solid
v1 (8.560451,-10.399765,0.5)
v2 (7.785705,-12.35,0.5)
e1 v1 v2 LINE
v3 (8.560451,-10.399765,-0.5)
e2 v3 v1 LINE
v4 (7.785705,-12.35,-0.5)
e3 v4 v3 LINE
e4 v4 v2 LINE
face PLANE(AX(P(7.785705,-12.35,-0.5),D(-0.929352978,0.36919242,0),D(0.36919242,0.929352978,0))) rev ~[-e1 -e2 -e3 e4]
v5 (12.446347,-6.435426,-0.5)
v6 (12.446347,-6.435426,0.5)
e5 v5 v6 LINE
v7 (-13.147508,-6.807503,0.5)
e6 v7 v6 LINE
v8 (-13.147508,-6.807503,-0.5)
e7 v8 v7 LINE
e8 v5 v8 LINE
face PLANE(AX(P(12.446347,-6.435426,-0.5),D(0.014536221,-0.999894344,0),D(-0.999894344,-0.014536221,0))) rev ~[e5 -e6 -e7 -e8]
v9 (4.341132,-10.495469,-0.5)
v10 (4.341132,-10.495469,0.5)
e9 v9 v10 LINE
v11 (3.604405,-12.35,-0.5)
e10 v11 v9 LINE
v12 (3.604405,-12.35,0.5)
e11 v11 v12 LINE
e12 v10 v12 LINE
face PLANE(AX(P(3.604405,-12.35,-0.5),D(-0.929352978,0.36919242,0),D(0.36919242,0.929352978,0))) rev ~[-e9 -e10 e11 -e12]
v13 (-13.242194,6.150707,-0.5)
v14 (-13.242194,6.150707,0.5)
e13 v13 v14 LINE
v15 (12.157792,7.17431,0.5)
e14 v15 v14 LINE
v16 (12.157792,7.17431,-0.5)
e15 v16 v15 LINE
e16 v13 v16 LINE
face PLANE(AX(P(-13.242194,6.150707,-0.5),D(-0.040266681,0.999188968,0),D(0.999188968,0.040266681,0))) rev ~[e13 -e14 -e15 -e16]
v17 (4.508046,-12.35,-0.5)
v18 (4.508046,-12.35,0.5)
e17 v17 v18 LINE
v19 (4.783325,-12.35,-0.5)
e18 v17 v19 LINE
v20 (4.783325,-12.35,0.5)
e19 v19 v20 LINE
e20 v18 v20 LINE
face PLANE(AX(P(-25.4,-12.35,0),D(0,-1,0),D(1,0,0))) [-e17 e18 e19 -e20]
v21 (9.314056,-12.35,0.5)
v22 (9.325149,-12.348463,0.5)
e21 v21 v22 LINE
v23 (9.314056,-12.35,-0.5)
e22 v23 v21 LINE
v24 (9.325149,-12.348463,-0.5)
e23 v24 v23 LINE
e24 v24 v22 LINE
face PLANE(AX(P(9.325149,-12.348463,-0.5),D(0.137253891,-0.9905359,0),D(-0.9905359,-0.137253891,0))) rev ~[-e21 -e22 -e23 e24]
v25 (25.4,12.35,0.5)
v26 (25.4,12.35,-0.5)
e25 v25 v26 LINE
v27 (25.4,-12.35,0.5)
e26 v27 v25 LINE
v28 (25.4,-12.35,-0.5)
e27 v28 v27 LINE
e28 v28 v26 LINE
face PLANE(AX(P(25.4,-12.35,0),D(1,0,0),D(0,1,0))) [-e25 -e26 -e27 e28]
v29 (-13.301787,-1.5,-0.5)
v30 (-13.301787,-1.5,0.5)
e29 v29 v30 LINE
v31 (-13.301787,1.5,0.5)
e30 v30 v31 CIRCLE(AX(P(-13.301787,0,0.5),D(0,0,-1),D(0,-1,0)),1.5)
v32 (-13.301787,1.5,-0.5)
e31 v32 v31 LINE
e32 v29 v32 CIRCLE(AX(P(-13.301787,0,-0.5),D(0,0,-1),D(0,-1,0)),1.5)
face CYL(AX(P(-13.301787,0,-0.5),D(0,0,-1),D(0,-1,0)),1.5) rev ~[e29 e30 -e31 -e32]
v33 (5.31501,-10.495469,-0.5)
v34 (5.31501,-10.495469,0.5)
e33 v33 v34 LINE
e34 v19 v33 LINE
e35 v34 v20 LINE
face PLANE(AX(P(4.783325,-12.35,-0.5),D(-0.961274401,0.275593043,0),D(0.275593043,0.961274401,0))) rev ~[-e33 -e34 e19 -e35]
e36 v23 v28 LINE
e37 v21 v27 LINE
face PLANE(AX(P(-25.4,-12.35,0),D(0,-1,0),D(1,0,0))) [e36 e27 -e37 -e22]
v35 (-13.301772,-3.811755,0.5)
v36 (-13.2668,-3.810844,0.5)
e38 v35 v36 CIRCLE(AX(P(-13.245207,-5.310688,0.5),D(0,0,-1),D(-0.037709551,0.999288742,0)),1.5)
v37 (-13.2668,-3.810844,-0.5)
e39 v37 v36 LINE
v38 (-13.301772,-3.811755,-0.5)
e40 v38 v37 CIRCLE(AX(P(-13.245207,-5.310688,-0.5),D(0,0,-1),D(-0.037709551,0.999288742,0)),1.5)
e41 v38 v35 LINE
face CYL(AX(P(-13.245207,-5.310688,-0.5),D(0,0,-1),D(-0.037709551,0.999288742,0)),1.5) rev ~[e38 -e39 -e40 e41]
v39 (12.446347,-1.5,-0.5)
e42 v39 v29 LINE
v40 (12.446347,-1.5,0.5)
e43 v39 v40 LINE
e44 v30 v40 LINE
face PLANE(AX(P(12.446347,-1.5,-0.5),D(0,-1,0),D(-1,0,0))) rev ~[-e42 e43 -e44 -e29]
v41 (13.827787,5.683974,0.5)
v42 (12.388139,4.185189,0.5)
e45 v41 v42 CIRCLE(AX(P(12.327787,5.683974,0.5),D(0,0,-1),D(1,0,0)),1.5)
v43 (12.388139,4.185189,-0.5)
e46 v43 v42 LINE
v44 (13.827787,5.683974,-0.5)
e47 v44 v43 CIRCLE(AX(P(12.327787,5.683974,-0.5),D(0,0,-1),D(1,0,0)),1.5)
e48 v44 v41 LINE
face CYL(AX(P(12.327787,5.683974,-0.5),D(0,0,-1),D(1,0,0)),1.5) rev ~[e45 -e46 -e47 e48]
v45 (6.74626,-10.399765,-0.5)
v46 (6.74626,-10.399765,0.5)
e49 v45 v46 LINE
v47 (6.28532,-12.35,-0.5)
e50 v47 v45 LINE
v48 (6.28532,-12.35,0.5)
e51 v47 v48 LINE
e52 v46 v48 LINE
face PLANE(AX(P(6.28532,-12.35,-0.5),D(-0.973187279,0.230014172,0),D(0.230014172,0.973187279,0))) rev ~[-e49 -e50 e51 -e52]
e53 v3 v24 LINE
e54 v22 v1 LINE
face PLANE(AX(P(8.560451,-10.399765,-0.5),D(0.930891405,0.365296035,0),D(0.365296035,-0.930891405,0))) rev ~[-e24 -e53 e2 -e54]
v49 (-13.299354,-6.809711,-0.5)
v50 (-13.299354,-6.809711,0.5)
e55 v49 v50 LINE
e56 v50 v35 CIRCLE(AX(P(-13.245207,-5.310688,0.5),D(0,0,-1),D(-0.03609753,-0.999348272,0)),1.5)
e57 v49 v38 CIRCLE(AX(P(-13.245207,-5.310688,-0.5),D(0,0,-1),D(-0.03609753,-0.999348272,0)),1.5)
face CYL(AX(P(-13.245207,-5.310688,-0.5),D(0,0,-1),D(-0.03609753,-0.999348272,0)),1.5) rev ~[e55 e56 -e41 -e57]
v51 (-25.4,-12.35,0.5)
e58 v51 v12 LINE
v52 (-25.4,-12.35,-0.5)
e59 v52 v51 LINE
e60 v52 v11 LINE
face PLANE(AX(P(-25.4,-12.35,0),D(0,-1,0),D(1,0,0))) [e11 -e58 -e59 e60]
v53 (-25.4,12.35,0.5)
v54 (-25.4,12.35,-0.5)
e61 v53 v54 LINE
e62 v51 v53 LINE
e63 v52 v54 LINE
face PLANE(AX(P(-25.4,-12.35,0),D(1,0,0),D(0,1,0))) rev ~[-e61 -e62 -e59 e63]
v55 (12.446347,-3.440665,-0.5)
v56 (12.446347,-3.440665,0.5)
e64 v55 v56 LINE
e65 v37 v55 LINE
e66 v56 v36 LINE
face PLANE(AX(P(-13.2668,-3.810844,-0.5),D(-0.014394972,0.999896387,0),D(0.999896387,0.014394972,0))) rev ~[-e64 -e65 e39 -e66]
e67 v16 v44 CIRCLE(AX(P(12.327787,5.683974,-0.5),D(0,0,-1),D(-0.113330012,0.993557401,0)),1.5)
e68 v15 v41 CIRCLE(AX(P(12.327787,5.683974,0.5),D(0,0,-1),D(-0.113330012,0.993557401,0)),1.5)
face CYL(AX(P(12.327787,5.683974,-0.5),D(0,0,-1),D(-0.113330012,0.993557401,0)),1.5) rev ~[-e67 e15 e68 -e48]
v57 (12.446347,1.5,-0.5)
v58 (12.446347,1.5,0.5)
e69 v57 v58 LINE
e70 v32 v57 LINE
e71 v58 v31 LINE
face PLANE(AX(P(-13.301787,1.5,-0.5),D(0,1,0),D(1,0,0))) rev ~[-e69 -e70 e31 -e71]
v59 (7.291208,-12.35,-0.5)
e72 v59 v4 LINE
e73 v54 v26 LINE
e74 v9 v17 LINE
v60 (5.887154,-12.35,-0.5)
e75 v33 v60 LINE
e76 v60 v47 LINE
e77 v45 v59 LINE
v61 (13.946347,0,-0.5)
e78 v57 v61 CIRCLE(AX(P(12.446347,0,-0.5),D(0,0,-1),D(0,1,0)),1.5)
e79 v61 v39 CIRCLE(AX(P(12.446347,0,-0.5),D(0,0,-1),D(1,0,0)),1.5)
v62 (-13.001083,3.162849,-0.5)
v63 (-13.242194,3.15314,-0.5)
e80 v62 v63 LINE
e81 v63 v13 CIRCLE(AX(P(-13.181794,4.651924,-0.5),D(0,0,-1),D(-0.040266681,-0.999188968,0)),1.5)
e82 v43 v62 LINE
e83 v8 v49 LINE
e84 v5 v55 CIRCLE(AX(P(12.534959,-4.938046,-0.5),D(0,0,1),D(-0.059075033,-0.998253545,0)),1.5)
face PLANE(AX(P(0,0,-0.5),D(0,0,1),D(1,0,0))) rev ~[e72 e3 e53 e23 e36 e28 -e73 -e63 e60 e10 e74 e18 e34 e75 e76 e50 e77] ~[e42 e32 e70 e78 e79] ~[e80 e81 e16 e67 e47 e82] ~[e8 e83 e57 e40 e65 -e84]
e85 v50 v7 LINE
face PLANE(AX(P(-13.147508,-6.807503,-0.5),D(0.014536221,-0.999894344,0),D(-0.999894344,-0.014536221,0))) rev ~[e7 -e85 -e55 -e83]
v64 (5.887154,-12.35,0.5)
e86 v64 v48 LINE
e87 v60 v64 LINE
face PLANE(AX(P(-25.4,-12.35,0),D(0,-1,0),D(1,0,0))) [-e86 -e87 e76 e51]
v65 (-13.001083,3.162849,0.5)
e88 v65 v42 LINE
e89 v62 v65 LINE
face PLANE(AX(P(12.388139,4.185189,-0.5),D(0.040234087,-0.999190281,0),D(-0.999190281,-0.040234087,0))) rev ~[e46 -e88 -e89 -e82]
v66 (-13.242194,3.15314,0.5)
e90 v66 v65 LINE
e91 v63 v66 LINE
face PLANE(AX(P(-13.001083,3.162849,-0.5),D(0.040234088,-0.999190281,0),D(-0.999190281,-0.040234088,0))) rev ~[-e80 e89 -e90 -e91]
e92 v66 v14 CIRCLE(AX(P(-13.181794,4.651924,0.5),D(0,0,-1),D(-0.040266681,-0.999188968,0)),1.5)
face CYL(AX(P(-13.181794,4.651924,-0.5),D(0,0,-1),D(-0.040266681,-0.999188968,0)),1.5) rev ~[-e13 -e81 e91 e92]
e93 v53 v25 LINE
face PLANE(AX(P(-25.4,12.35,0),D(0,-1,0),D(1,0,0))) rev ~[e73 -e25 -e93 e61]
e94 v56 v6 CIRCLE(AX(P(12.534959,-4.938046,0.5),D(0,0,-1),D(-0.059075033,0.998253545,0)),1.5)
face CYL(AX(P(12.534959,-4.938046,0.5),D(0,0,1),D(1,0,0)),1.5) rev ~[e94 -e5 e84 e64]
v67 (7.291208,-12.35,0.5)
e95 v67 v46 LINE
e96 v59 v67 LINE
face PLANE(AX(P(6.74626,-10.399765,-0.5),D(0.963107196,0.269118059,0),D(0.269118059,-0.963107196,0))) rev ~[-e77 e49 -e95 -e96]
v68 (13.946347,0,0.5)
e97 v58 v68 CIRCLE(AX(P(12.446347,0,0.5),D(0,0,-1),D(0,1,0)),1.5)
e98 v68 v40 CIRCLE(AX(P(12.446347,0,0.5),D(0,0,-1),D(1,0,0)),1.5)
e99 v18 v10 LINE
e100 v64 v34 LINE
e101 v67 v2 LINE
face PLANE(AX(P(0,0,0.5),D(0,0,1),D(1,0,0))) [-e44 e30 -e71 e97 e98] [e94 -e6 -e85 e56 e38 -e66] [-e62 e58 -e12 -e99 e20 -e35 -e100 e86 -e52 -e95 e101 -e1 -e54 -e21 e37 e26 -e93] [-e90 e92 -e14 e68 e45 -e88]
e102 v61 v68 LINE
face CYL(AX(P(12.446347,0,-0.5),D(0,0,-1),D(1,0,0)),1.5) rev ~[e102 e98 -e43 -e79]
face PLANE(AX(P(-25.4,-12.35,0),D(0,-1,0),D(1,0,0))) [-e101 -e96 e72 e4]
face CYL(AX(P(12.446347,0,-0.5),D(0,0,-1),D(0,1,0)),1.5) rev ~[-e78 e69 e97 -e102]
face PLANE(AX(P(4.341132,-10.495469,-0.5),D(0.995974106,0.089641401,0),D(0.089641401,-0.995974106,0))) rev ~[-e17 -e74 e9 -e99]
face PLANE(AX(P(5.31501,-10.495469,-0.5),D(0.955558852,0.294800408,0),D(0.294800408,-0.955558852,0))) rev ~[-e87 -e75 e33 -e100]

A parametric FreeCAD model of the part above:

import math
import FreeCAD as App
import Part
import Sketcher
from FreeCAD import Vector


def add_polygon(sketch, points):
    """Adds a closed chain of lines whose ends are joined by coincident constraints."""
    first, n = sketch.GeometryCount, len(points)
    for a, b in zip(points, points[1:] + points[:1]):
        sketch.addGeometry(Part.LineSegment(App.Vector(*a, 0), App.Vector(*b, 0)), False)
    for i in range(n):
        sketch.addConstraint(Sketcher.Constraint("Coincident", first + i, 2, first + (i + 1) % n, 1))

doc = App.newDocument("Part")
body = doc.addObject("PartDesign::Body", "Body")

sketch1 = body.newObject("Sketcher::SketchObject", "Sketch")
sketch1.AttachmentSupport = (doc.getObject("XY_Plane"), [""])
sketch1.MapMode = "FlatFace"
add_polygon(sketch1, [(-25, 12), (-25, -12), (25, -12), (25, 12)])
sketch1.addConstraint([
    Sketcher.Constraint("Vertical", 0),
    Sketcher.Constraint("Horizontal", 1),
    Sketcher.Constraint("Vertical", 2),
    Sketcher.Constraint("Horizontal", 3),
    Sketcher.Constraint("Symmetric", 0, 2, 2, 2, -1, 1),
    Sketcher.Constraint("DistanceX", 1, 1, 1, 2, 50.8),
    Sketcher.Constraint("DistanceY", 0, 2, 0, 1, 24.7),
])
pad1 = body.newObject("PartDesign::Pad", "Pad")
pad1.Profile = sketch1
pad1.Length = 1
pad1.Midplane = True

sketch2 = body.newObject("Sketcher::SketchObject", "Sketch001")
sketch2.AttachmentSupport = (doc.getObject("XY_Plane"), [""])
sketch2.MapMode = "FlatFace"
sketch2.AttachmentOffset = App.Placement(Vector(0, 0, 0.5), App.Rotation())
sketch2.addGeometry(Part.Circle(Vector(12.5, -4.9, 0), Vector(0, 0, 1), 1.5), False)
sketch2.addConstraint([
    Sketcher.Constraint("Diameter", 0, 3.0),
    Sketcher.Constraint("DistanceX", -1, 1, 0, 3, 12.534959),
    Sketcher.Constraint("DistanceY", 0, 3, -1, 1, 4.938046),
])
pocket1 = body.newObject("PartDesign::Pocket", "Pocket")
pocket1.Profile = sketch2
pocket1.Length = 25

sketch3 = body.newObject("Sketcher::SketchObject", "Sketch002")
sketch3.AttachmentSupport = (doc.getObject("XY_Plane"), [""])
sketch3.MapMode = "FlatFace"
sketch3.AttachmentOffset = App.Placement(Vector(0, 0, -0.5), App.Rotation())
sketch3.addGeometry([
    Part.ArcOfCircle(Part.Circle(Vector(-13.245, -5.311, 0), Vector(0, 0, 1), 1.5), math.radians(0), math.radians(91)),
    Part.ArcOfCircle(Part.Circle(Vector(-13.245, -5.311, 0), Vector(0, 0, 1), 1.5), math.radians(-86), math.radians(0)),
    Part.LineSegment(Vector(-13.148, -6.808, 0), Vector(-13.299, -6.81, 0)),
    Part.ArcOfCircle(Part.Circle(Vector(-13.245, -5.311, 0), Vector(0, 0, 1), 1.5), math.radians(92), math.radians(268)),
    Part.ArcOfCircle(Part.Circle(Vector(-13.245, -5.311, 0), Vector(0, 0, 1), 1.5), math.radians(90.82), math.radians(92.16)),
], False)
sketch3.addConstraint([
    Sketcher.Constraint("Tangent", 0, 1, 1, 2),
    Sketcher.Constraint("Coincident", 1, 1, 2, 1),
    Sketcher.Constraint("Coincident", 2, 2, 3, 2),
    Sketcher.Constraint("Tangent", 3, 1, 4, 2),
    Sketcher.Constraint("Tangent", 4, 1, 0, 2),
    Sketcher.Constraint("Coincident", 3, 3, 0, 3),
    Sketcher.Constraint("Equal", 0, 1),
    Sketcher.Constraint("Horizontal", 4, 3, 0, 1),
    Sketcher.Constraint("Radius", 0, 1.5),
    Sketcher.Constraint("DistanceX", 4, 1, -1, 1, 13.2668),
    Sketcher.Constraint("DistanceX", 0, 3, 1, 1, 0.097699),
    Sketcher.Constraint("Distance", 2, 0.151861),
    Sketcher.Constraint("DistanceY", 0, 3, -1, 1, 5.310688),
    Sketcher.Constraint("DistanceX", 1, 1, -1, 1, 13.147508),
    Sketcher.Constraint("DistanceX", 3, 1, -1, 1, 13.301772),
])
pocket2 = body.newObject("PartDesign::Pocket", "Pocket001")
pocket2.Profile = sketch3
pocket2.Length = 25
pocket2.Reversed = True

sketch4 = body.newObject("Sketcher::SketchObject", "Sketch003")
sketch4.AttachmentSupport = (doc.getObject("XY_Plane"), [""])
sketch4.MapMode = "FlatFace"
sketch4.AttachmentOffset = App.Placement(Vector(0, 0, -0.5), App.Rotation())
sketch4.addGeometry([
    Part.ArcOfCircle(Part.Circle(Vector(-13.245207, -5.310688, 0), Vector(0, 0, 1), 1.5), math.radians(-86.265527), math.radians(0)),
    Part.ArcOfCircle(Part.Circle(Vector(-13.245207, -5.310688, 0), Vector(0, 0, 1), 1.5), math.radians(0), math.radians(90.824798)),
    Part.LineSegment(Vector(-13.2668, -3.810844, 0), Vector(12.446347, -3.440665, 0)),
    Part.ArcOfCircle(Part.Circle(Vector(12.534959, -4.938046, 0), Vector(0, 0, 1), 1.5), math.radians(93.386722), math.radians(266.613278)),
    Part.LineSegment(Vector(12.446347, -6.435426, 0), Vector(-13.147508, -6.807503, 0)),
], False)
sketch4.addConstraint([
    Sketcher.Constraint("Coincident", 0, 2, 1, 1),
    Sketcher.Constraint("Coincident", 1, 2, 2, 1),
    Sketcher.Constraint("Coincident", 2, 2, 3, 1),
    Sketcher.Constraint("Coincident", 3, 2, 4, 1),
    Sketcher.Constraint("Coincident", 4, 2, 0, 1),
    Sketcher.Constraint("Coincident", 1, 3, 0, 3),
    Sketcher.Constraint("Radius", 0, 1.5),
    Sketcher.Constraint("Radius", 3, 1.5),
    Sketcher.Constraint("DistanceX", 1, 2, -1, 1, 13.2668),
    Sketcher.Constraint("DistanceY", 3, 3, 1, 2, 1.127202),
    Sketcher.Constraint("DistanceX", 0, 3, 4, 2, 0.097699),
    Sketcher.Constraint("Distance", 2, 25.715811),
    Sketcher.Constraint("Distance", 4, 25.596559),
    Sketcher.Constraint("DistanceY", 0, 3, -1, 1, 5.310688),
    Sketcher.Constraint("DistanceX", -1, 1, 3, 3, 12.534959),
    Sketcher.Constraint("DistanceY", 0, 2, -1, 1, 5.310688),
    Sketcher.Constraint("DistanceX", 4, 2, -1, 1, 13.147508),
])
pocket3 = body.newObject("PartDesign::Pocket", "Pocket002")
pocket3.Profile = sketch4
pocket3.Length = 25
pocket3.Reversed = True

sketch5 = body.newObject("Sketcher::SketchObject", "Sketch004")
sketch5.AttachmentSupport = (doc.getObject("XY_Plane"), [""])
sketch5.MapMode = "FlatFace"
sketch5.AttachmentOffset = App.Placement(Vector(0, 0, -0.5), App.Rotation())
sketch5.addGeometry([
    Part.ArcOfCircle(Part.Circle(Vector(12.45, 0, 0), Vector(0, 0, 1), 1.5), math.radians(0), math.radians(90)),
    Part.ArcOfCircle(Part.Circle(Vector(12.45, 0, 0), Vector(0, 0, 1), 1.5), math.radians(-90), math.radians(0)),
    Part.LineSegment(Vector(12.45, -1.5, 0), Vector(-13.3, -1.5, 0)),
    Part.ArcOfCircle(Part.Circle(Vector(-13.3, 0, 0), Vector(0, 0, 1), 1.5), math.radians(90), math.radians(270)),
    Part.LineSegment(Vector(-13.3, 1.5, 0), Vector(12.45, 1.5, 0)),
    Part.ArcOfCircle(Part.Circle(Vector(12.33, 5.68, 0), Vector(0, 0, 1), 1.5), math.radians(0), math.radians(97)),
    Part.ArcOfCircle(Part.Circle(Vector(12.33, 5.68, 0), Vector(0, 0, 1), 1.5), math.radians(-88), math.radians(0)),
    Part.LineSegment(Vector(12.39, 4.19, 0), Vector(-13, 3.16, 0)),
    Part.LineSegment(Vector(-13, 3.16, 0), Vector(-13.24, 3.15, 0)),
    Part.ArcOfCircle(Part.Circle(Vector(-13.18, 4.65, 0), Vector(0, 0, 1), 1.5), math.radians(92), math.radians(268)),
    Part.LineSegment(Vector(-13.24, 6.15, 0), Vector(12.16, 7.17, 0)),
], False)
sketch5.addConstraint([
    Sketcher.Constraint("Tangent", 0, 1, 1, 2),
    Sketcher.Constraint("Tangent", 1, 1, 2, 1),
    Sketcher.Constraint("Tangent", 2, 2, 3, 2),
    Sketcher.Constraint("Tangent", 3, 1, 4, 1),
    Sketcher.Constraint("Tangent", 4, 2, 0, 2),
    Sketcher.Constraint("Tangent", 5, 1, 6, 2),
    Sketcher.Constraint("Tangent", 6, 1, 7, 1),
    Sketcher.Constraint("Coincident", 7, 2, 8, 1),
    Sketcher.Constraint("Coincident", 8, 2, 9, 2),
    Sketcher.Constraint("Tangent", 9, 1, 10, 1),
    Sketcher.Constraint("Coincident", 10, 2, 5, 2),
    Sketcher.Constraint("Horizontal", 2),
    Sketcher.Constraint("Horizontal", 4),
    Sketcher.Constraint("Equal", 0, 1),
    Sketcher.Constraint("Equal", 3, 5),
    Sketcher.Constraint("Equal", 5, 6),
    Sketcher.Constraint("Equal", 6, 9),
    Sketcher.Constraint("PointOnObject", 0, 3, -1),
    Sketcher.Constraint("PointOnObject", 0, 1, -1),
    Sketcher.Constraint("Parallel", 7, 8),
    Sketcher.Constraint("Horizontal", 6, 3, 5, 1),
    Sketcher.Constraint("Vertical", 8, 2, 9, 1),
    Sketcher.Constraint("Radius", 0, 1.5),
    Sketcher.Constraint("DistanceX", 8, 2, 9, 3, 0.0604),
    Sketcher.Constraint("DistanceX", 2, 2, 2, 1, 25.748134),
    Sketcher.Constraint("DistanceX", -1, 1, 6, 1, 12.388139),
    Sketcher.Constraint("DistanceY", -1, 1, 6, 1, 4.185189),
    Sketcher.Constraint("DistanceY", -1, 1, 7, 2, 3.162849),
    Sketcher.Constraint("DistanceY", -1, 1, 8, 2, 3.15314),
    Sketcher.Constraint("DistanceY", -1, 1, 10, 2, 7.17431),
    Sketcher.Constraint("DistanceX", 5, 3, 0, 3, 0.118559),
])
pocket4 = body.newObject("PartDesign::Pocket", "Pocket003")
pocket4.Profile = sketch5
pocket4.Length = 25
pocket4.Reversed = True

sketch6 = body.newObject("Sketcher::SketchObject", "Sketch005")
sketch6.AttachmentSupport = (doc.getObject("XY_Plane"), [""])
sketch6.MapMode = "FlatFace"
sketch6.AttachmentOffset = App.Placement(Vector(0, 0, -0.5), App.Rotation())
add_polygon(sketch6, [(8.56, -10.4), (9.325, -12.348), (9.314, -12.35), (7.786, -12.35)])
add_polygon(sketch6, [(6.746, -10.4), (7.291, -12.35), (6.285, -12.35)])
add_polygon(sketch6, [(5.315, -10.495), (5.887, -12.35), (4.783, -12.35)])
add_polygon(sketch6, [(4.508, -12.35), (3.604, -12.35), (4.341, -10.495)])
sketch6.addConstraint([
    Sketcher.Constraint("Horizontal", 2),
    Sketcher.Constraint("Horizontal", 5),
    Sketcher.Constraint("Horizontal", 8),
    Sketcher.Constraint("Horizontal", 10),
    Sketcher.Constraint("Parallel", 3, 11),
    Sketcher.Constraint("Horizontal", 2, 2, 4, 2),
    Sketcher.Constraint("Horizontal", 3, 2, 6, 2),
    Sketcher.Constraint("Horizontal", 5, 2, 7, 2),
    Sketcher.Constraint("Horizontal", 8, 2, 10, 2),
    Sketcher.Constraint("Horizontal", 9, 2, 11, 2),
    Sketcher.Constraint("DistanceY", 1, 2, -1, 1, 12.35),
    Sketcher.Constraint("Distance", 1, 0.011199),
    Sketcher.Constraint("DistanceX", 2, 2, 2, 1, 1.528351),
    Sketcher.Constraint("DistanceX", 5, 2, 5, 1, 1.005889),
    Sketcher.Constraint("DistanceX", 8, 2, 8, 1, 1.103829),
    Sketcher.Constraint("DistanceX", 10, 2, 10, 1, 0.903641),
    Sketcher.Constraint("DistanceX", 3, 2, 0, 2, 0.764699),
    Sketcher.Constraint("DistanceX", 9, 2, 4, 2, 1.976198),
    Sketcher.Constraint("Distance", 4, 2.02494),
    Sketcher.Constraint("Distance", 7, 1.940782),
    Sketcher.Constraint("DistanceX", -1, 1, 0, 2, 9.325149),
    Sketcher.Constraint("DistanceX", -1, 1, 4, 2, 7.291208),
    Sketcher.Constraint("DistanceX", -1, 1, 6, 2, 6.74626),
    Sketcher.Constraint("DistanceY", 9, 2, -1, 1, 10.495469),
    Sketcher.Constraint("DistanceX", -1, 1, 11, 2, 4.341132),
    Sketcher.Constraint("DistanceX", 7, 2, 2, 2, 1.898552),
])
pocket5 = body.newObject("PartDesign::Pocket", "Pocket004")
pocket5.Profile = sketch6
pocket5.Length = 25
pocket5.Reversed = True

doc.recompute()
